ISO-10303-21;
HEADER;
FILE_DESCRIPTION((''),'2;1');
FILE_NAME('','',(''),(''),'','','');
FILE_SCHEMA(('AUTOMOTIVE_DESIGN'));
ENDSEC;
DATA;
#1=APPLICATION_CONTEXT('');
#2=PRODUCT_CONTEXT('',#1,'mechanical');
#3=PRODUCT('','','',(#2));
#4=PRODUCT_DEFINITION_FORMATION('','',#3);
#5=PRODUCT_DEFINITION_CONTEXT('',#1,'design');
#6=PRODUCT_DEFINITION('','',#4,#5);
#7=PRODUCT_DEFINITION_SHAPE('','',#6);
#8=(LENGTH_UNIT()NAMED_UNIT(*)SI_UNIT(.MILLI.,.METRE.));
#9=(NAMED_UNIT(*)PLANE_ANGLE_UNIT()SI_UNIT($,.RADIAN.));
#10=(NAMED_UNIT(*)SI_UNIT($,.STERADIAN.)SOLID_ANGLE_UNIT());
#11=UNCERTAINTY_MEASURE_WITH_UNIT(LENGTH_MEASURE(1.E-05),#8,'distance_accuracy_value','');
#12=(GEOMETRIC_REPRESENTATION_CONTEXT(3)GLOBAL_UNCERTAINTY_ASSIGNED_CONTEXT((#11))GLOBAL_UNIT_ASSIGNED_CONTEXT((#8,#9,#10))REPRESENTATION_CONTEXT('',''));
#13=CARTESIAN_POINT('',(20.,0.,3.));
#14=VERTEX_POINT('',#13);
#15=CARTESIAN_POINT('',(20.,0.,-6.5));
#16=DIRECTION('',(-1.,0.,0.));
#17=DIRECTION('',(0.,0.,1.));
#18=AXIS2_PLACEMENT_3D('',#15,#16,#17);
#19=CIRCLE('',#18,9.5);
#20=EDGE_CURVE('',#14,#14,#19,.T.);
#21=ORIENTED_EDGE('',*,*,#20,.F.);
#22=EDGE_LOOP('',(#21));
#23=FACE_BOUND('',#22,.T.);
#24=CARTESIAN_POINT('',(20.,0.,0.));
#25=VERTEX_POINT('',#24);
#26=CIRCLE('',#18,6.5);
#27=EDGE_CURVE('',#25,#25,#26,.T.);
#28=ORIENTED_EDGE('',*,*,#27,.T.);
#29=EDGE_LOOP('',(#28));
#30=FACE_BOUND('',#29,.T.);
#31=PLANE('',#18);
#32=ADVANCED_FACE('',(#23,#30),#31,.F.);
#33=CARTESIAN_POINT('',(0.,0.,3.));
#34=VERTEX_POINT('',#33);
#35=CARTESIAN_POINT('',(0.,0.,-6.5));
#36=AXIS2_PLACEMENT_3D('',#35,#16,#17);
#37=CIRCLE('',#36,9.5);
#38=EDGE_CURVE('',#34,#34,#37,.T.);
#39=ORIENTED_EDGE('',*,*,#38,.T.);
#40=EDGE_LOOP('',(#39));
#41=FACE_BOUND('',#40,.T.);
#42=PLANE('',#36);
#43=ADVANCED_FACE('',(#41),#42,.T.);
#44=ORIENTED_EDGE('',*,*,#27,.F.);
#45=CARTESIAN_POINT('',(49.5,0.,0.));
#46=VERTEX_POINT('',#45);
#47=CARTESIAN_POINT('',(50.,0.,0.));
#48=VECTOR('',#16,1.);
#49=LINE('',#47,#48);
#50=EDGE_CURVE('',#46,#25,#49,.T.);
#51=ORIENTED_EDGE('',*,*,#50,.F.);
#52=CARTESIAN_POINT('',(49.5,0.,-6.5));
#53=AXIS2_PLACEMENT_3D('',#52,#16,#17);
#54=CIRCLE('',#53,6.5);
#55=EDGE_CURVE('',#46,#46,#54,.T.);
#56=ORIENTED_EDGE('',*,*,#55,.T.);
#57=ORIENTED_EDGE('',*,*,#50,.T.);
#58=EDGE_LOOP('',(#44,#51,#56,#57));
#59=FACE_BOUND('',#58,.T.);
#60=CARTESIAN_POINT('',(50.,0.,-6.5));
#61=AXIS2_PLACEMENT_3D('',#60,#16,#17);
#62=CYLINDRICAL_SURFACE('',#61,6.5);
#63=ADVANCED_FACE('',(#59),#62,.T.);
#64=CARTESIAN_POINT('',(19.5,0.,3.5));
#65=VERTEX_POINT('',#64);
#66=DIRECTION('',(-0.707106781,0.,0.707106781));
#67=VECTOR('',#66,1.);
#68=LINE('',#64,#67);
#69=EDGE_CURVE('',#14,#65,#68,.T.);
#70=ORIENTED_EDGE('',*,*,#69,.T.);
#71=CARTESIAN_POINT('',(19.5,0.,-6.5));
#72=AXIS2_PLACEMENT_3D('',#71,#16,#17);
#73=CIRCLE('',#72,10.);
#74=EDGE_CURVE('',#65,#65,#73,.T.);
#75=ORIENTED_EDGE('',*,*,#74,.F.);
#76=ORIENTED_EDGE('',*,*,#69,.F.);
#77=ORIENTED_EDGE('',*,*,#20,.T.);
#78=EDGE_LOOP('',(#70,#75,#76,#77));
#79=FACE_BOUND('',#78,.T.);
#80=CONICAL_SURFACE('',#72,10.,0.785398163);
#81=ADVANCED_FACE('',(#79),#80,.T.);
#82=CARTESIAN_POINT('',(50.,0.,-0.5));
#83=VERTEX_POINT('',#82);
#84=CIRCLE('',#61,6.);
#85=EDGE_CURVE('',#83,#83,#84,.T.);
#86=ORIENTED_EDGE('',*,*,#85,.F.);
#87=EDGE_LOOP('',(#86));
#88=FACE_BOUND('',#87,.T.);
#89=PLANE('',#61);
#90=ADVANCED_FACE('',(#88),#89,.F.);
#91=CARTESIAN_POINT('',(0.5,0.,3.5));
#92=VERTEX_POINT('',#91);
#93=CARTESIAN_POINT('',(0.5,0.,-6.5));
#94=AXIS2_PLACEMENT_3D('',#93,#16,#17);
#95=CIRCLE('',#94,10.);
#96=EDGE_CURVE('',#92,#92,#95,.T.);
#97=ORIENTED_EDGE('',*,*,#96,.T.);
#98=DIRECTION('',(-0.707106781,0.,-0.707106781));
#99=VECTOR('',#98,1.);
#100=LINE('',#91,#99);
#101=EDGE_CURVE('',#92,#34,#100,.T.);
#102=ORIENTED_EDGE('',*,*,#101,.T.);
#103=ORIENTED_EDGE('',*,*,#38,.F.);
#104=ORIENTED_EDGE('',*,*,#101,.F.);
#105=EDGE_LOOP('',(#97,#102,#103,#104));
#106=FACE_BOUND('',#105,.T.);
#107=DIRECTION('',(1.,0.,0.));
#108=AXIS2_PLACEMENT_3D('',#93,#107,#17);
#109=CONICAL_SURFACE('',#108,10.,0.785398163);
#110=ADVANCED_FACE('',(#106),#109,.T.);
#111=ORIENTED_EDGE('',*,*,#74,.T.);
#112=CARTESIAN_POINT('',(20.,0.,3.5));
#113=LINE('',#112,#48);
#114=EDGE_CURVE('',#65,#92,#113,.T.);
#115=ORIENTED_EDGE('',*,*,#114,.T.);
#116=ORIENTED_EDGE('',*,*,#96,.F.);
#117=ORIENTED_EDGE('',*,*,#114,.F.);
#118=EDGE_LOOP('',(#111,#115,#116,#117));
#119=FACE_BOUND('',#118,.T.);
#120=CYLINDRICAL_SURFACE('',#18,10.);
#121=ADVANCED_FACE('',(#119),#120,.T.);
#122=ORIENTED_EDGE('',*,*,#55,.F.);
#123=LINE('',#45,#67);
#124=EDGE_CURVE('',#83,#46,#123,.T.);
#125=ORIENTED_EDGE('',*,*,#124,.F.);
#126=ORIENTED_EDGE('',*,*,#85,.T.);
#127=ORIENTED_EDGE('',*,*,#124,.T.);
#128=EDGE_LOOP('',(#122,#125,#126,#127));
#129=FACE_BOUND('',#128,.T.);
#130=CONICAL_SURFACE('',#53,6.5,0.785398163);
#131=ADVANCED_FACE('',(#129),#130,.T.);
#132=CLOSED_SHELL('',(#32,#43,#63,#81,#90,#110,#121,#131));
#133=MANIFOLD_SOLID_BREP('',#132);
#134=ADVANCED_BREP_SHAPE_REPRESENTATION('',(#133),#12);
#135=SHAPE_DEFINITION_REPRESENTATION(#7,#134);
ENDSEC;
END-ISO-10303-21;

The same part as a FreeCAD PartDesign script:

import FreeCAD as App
import Part
import Sketcher


def edges_at(feature, points):
    """Names of the edges that pass closest to the given points."""
    edges = feature.Shape.Edges
    near = lambda p: min(range(len(edges)), key=lambda i: edges[i].distToShape(Part.Vertex(*p))[0])
    return sorted({f"Edge{near(p) + 1}" for p in points})

doc = App.newDocument("Part")
body = doc.addObject("PartDesign::Body", "Body")

sketch1 = doc.addObject("Sketcher::SketchObject", "Sketch")
body.addObject(sketch1)
sketch1.AttachmentSupport = (doc.XZ_Plane, [""])
sketch1.MapMode = "FlatFace"
sketch1.addGeometry(Part.LineSegment(App.Vector(0, 3.5, 0), App.Vector(0, -6.5, 0)), False)
sketch1.addGeometry(Part.LineSegment(App.Vector(0, -6.5, 0), App.Vector(50, -6.5, 0)), False)
sketch1.addGeometry(Part.LineSegment(App.Vector(50, -6.5, 0), App.Vector(50, 0, 0)), False)
sketch1.addGeometry(Part.LineSegment(App.Vector(50, 0, 0), App.Vector(20, 0, 0)), False)
sketch1.addGeometry(Part.LineSegment(App.Vector(20, 0, 0), App.Vector(20, 3.5, 0)), False)
sketch1.addGeometry(Part.LineSegment(App.Vector(20, 3.5, 0), App.Vector(0, 3.5, 0)), False)
sketch1.addGeometry(Part.LineSegment(App.Vector(50, -6.5, 0), App.Vector(0, -6.5, 0)), True)
sketch1.addConstraint(Sketcher.Constraint("Coincident", 0, 2, 1, 1))
sketch1.addConstraint(Sketcher.Constraint("Coincident", 1, 2, 2, 1))
sketch1.addConstraint(Sketcher.Constraint("Coincident", 2, 2, 3, 1))
sketch1.addConstraint(Sketcher.Constraint("Coincident", 3, 2, 4, 1))
sketch1.addConstraint(Sketcher.Constraint("Coincident", 4, 2, 5, 1))
sketch1.addConstraint(Sketcher.Constraint("Coincident", 5, 2, 0, 1))
sketch1.addConstraint(Sketcher.Constraint("Vertical", 0))
sketch1.addConstraint(Sketcher.Constraint("Horizontal", 1))
sketch1.addConstraint(Sketcher.Constraint("Vertical", 2))
sketch1.addConstraint(Sketcher.Constraint("Horizontal", 3))
sketch1.addConstraint(Sketcher.Constraint("Vertical", 4))
sketch1.addConstraint(Sketcher.Constraint("Horizontal", 5))
sketch1.addConstraint(Sketcher.Constraint("Horizontal", 6))
sketch1.addConstraint(Sketcher.Constraint("Coincident", 6, 1, 1, 2))
sketch1.addConstraint(Sketcher.Constraint("PointOnObject", 0, 2, -2))
sketch1.addConstraint(Sketcher.Constraint("PointOnObject", 2, 2, -1))
sketch1.addConstraint(Sketcher.Constraint("PointOnObject", 6, 2, -2))
sketch1.addConstraint(Sketcher.Constraint("DistanceX", 1, 1, 1, 2, 50.0))
sketch1.addConstraint(Sketcher.Constraint("DistanceX", 3, 2, 3, 1, 30.0))
sketch1.addConstraint(Sketcher.Constraint("DistanceY", 0, 2, 0, 1, 10.0))
sketch1.addConstraint(Sketcher.Constraint("DistanceY", 2, 1, 2, 2, 6.5))
revolution = doc.addObject("PartDesign::Revolution", "Revolution")
body.addObject(revolution)
revolution.Profile = sketch1
revolution.ReferenceAxis = (sketch1, ["Axis0"])
revolution.Angle = 360
doc.recompute()

chamfer = doc.addObject("PartDesign::Chamfer", "Chamfer")
body.addObject(chamfer)
chamfer.Base = (revolution, edges_at(revolution, [(50, 0, -13)]))
chamfer.Size = 0.5
doc.recompute()

chamfer2 = doc.addObject("PartDesign::Chamfer", "Chamfer001")
body.addObject(chamfer2)
chamfer2.Base = (chamfer, edges_at(chamfer, [(20, 0, -16.5), (0, 0, -16.5)]))
chamfer2.Size = 0.5

doc.recompute()
